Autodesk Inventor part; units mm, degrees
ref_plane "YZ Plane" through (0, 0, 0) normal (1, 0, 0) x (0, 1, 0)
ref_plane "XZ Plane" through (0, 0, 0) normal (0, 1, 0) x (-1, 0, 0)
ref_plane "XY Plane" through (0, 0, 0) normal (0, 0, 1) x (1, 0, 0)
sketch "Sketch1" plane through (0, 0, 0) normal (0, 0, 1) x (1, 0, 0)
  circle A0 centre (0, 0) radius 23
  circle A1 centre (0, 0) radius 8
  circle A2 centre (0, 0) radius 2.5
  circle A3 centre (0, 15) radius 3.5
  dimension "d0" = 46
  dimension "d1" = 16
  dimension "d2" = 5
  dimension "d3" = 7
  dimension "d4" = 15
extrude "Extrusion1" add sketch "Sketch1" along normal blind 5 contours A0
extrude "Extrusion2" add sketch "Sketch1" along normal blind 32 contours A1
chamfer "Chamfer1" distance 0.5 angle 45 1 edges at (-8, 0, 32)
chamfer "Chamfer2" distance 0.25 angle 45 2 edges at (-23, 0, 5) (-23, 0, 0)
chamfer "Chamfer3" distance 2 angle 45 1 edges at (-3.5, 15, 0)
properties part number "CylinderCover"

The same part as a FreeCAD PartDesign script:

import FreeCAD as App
import Part
import Sketcher
from FreeCAD import Vector
Q = App.Units.Quantity


def edges_at(feature, points):
    """Names of the edges that pass closest to the given points."""
    edges = feature.Shape.Edges
    near = lambda p: min(range(len(edges)), key=lambda i: edges[i].distToShape(Part.Vertex(*p))[0])
    return sorted({f"Edge{near(p) + 1}" for p in points})

doc = App.newDocument("Part")
body = doc.addObject("PartDesign::Body", "Body")

# Sketch on XY plane
sketch1 = body.newObject("Sketcher::SketchObject", "Sketch")
sketch1.AttachmentSupport = (doc.getObject("XY_Plane"), [""])
sketch1.MapMode = "FlatFace"
sketch1.addGeometry([
    Part.Circle(Vector(0, 0, 0), Vector(0, 0, 1), 23),
    Part.Circle(Vector(0, 0, 0), Vector(0, 0, 1), 8),
    Part.Circle(Vector(0, 15, 0), Vector(0, 0, 1), 3.5),
], False)
sketch1.addConstraint([
    Sketcher.Constraint("Coincident", 0, 3, -1, 1),
    Sketcher.Constraint("Coincident", 1, 3, -1, 1),
    Sketcher.Constraint("PointOnObject", 2, 3, -2),
    Sketcher.Constraint("Diameter", 0, Q("46 mm")),
    Sketcher.Constraint("Diameter", 1, Q("16 mm")),
    Sketcher.Constraint("Diameter", 2, Q("7 mm")),
    Sketcher.Constraint("DistanceY", -1, 1, 2, 3, Q("15 mm")),
])
pad1 = body.newObject("PartDesign::Pad", "Pad")
pad1.Profile = sketch1
pad1.Length = 5

# Sketch on XY plane
sketch2 = body.newObject("Sketcher::SketchObject", "Sketch001")
sketch2.AttachmentSupport = (doc.getObject("XY_Plane"), [""])
sketch2.MapMode = "FlatFace"
sketch2.addGeometry([
    Part.Circle(Vector(0, 0, 0), Vector(0, 0, 1), 8),
    Part.Circle(Vector(0, 0, 0), Vector(0, 0, 1), 2.5),
], False)
sketch2.addConstraint([
    Sketcher.Constraint("Coincident", 0, 3, -1, 1),
    Sketcher.Constraint("Coincident", 1, 3, -1, 1),
    Sketcher.Constraint("Diameter", 0, Q("16 mm")),
    Sketcher.Constraint("Diameter", 1, Q("5 mm")),
])
pad2 = body.newObject("PartDesign::Pad", "Pad001")
pad2.Profile = sketch2
pad2.Length = 32
doc.recompute()

chamfer = body.newObject("PartDesign::Chamfer", "Chamfer")
chamfer.Base = (pad2, edges_at(pad2, [(-8, 0, 32)]))
chamfer.Size = 0.5
doc.recompute()

chamfer2 = body.newObject("PartDesign::Chamfer", "Chamfer001")
chamfer2.Base = (chamfer, edges_at(chamfer, [(-23, 0, 5), (-23, 0, 0)]))
chamfer2.Size = 0.25
doc.recompute()

chamfer3 = body.newObject("PartDesign::Chamfer", "Chamfer002")
chamfer3.Base = (chamfer2, edges_at(chamfer2, [(-3.5, 15, 0)]))
chamfer3.Size = 2

doc.recompute()
